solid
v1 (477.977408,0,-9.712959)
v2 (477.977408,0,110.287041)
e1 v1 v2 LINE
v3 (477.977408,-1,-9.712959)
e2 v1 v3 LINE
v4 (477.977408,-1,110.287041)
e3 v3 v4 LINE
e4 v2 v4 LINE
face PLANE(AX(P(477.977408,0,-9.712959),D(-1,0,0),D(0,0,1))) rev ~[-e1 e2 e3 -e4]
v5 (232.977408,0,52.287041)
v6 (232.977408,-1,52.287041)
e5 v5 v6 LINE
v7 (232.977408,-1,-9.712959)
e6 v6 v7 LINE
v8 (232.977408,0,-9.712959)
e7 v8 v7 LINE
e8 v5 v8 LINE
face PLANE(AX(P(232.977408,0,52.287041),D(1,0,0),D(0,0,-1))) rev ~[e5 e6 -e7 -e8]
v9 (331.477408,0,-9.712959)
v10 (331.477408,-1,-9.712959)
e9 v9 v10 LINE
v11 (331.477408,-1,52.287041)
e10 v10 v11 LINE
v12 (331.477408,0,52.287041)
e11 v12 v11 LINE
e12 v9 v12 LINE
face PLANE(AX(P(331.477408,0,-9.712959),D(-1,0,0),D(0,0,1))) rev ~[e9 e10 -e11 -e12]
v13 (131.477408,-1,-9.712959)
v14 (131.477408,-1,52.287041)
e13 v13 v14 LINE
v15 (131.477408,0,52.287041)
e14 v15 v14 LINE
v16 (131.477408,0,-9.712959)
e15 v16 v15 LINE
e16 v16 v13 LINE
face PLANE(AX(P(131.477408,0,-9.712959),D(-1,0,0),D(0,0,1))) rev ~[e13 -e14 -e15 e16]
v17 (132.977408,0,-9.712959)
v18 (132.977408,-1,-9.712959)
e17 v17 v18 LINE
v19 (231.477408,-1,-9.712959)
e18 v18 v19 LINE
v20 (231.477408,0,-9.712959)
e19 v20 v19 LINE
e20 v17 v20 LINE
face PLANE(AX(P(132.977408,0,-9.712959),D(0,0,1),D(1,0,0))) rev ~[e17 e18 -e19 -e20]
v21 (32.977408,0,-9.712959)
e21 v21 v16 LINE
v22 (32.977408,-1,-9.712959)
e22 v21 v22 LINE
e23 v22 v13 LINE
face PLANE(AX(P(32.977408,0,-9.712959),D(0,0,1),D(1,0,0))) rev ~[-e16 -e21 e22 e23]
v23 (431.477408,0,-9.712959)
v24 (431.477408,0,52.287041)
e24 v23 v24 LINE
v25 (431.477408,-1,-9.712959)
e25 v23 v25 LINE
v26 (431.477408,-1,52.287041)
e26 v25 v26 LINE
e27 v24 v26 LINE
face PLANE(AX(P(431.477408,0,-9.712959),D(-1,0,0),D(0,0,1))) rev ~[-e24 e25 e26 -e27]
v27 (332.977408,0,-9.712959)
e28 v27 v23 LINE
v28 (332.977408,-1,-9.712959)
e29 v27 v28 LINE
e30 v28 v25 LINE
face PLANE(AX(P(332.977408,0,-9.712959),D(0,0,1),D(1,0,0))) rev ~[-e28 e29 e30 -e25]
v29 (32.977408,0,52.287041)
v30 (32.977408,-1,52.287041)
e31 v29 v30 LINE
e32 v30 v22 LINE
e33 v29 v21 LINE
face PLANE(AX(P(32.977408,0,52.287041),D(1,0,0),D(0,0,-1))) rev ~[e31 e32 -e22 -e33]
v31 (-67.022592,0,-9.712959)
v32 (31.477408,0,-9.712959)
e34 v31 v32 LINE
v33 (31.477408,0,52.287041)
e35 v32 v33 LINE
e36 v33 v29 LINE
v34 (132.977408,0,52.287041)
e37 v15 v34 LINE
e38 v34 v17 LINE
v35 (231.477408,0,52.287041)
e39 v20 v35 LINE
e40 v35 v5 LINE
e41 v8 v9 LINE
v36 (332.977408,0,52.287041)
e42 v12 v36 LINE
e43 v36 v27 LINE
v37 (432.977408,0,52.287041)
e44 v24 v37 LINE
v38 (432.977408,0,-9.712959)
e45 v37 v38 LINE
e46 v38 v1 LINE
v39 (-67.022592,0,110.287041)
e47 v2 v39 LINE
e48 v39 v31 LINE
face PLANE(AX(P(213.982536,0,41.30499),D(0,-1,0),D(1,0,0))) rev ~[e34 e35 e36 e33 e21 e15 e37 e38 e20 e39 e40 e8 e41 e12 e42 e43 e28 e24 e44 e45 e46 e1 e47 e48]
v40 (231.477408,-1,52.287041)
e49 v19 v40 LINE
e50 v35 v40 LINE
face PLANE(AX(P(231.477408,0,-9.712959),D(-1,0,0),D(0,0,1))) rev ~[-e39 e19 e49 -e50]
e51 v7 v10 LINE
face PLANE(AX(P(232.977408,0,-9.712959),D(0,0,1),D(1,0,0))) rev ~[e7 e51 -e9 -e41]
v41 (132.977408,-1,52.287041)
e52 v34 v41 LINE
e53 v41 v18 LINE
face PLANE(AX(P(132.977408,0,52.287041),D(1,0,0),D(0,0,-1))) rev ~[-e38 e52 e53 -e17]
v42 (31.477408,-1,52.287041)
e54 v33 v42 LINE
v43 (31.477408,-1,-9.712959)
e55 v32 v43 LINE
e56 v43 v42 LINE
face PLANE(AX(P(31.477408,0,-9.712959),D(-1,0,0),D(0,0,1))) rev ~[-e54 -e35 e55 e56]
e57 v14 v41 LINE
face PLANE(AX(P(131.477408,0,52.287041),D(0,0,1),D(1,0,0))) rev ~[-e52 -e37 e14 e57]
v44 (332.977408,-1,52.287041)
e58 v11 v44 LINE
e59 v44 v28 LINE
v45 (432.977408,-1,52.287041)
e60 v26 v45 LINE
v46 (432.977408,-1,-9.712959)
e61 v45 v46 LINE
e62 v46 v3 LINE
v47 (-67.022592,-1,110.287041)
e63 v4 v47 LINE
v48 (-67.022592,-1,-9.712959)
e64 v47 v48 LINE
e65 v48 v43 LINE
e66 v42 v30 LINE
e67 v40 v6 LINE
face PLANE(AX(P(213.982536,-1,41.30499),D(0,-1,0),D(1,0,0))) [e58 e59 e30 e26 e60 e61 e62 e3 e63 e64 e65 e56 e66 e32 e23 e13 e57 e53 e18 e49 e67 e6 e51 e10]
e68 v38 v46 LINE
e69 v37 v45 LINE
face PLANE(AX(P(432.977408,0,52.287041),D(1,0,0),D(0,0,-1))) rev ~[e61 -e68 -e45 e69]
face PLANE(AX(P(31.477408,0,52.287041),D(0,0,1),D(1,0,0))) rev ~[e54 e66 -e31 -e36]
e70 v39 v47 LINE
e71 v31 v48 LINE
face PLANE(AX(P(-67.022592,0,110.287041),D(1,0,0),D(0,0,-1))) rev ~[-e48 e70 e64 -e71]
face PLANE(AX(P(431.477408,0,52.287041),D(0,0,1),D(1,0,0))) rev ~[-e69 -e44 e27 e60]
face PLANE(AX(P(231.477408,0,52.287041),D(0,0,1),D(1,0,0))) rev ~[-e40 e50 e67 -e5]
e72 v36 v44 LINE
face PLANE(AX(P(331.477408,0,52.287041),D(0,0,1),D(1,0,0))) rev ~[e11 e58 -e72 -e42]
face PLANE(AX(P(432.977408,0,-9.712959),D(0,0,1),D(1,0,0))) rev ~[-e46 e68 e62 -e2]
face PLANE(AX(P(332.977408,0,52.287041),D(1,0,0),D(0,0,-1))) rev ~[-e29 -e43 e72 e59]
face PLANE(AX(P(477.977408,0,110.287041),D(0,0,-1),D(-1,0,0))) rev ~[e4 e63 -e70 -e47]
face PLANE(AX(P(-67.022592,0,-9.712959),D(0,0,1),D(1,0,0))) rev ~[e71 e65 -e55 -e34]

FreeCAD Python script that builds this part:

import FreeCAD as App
import Part
import Sketcher

V = App.Vector
Q = App.Units.Quantity

doc = App.newDocument("Part")
body = doc.addObject("PartDesign::Body", "Body")

sketch1 = body.newObject("Sketcher::SketchObject", "Sketch")
sketch1.AttachmentSupport = (doc.getObject("XZ_Plane"), [""])
sketch1.MapMode = "FlatFace"
sketch1.addGeometry([
    Part.LineSegment(V(-67, 110.3, 0), V(-67, -9.7, 0)),
    Part.LineSegment(V(-67, -9.7, 0), V(31.5, -9.7, 0)),
    Part.LineSegment(V(31.5, -9.7, 0), V(31.5, 52.3, 0)),
    Part.LineSegment(V(31.5, 52.3, 0), V(33, 52.3, 0)),
    Part.LineSegment(V(33, 52.3, 0), V(33, -9.7, 0)),
    Part.LineSegment(V(33, -9.7, 0), V(131.5, -9.7, 0)),
    Part.LineSegment(V(131.5, -9.7, 0), V(131.5, 52.3, 0)),
    Part.LineSegment(V(131.5, 52.3, 0), V(133, 52.3, 0)),
    Part.LineSegment(V(133, 52.3, 0), V(133, -9.7, 0)),
    Part.LineSegment(V(133, -9.7, 0), V(231.5, -9.7, 0)),
    Part.LineSegment(V(231.5, -9.7, 0), V(231.5, 52.3, 0)),
    Part.LineSegment(V(231.5, 52.3, 0), V(233, 52.3, 0)),
    Part.LineSegment(V(233, 52.3, 0), V(233, -9.7, 0)),
    Part.LineSegment(V(233, -9.7, 0), V(331.5, -9.7, 0)),
    Part.LineSegment(V(331.5, -9.7, 0), V(331.5, 52.3, 0)),
    Part.LineSegment(V(331.5, 52.3, 0), V(333, 52.3, 0)),
    Part.LineSegment(V(333, 52.3, 0), V(333, -9.7, 0)),
    Part.LineSegment(V(333, -9.7, 0), V(431.5, -9.7, 0)),
    Part.LineSegment(V(431.5, -9.7, 0), V(431.5, 52.3, 0)),
    Part.LineSegment(V(431.5, 52.3, 0), V(433, 52.3, 0)),
    Part.LineSegment(V(433, 52.3, 0), V(433, -9.7, 0)),
    Part.LineSegment(V(433, -9.7, 0), V(478, -9.7, 0)),
    Part.LineSegment(V(478, -9.7, 0), V(478, 110.3, 0)),
    Part.LineSegment(V(478, 110.3, 0), V(-67, 110.3, 0)),
], False)
sketch1.addConstraint([
    Sketcher.Constraint("Coincident", 0, 2, 1, 1),
    Sketcher.Constraint("Coincident", 1, 2, 2, 1),
    Sketcher.Constraint("Coincident", 2, 2, 3, 1),
    Sketcher.Constraint("Coincident", 3, 2, 4, 1),
    Sketcher.Constraint("Coincident", 4, 2, 5, 1),
    Sketcher.Constraint("Coincident", 5, 2, 6, 1),
    Sketcher.Constraint("Coincident", 6, 2, 7, 1),
    Sketcher.Constraint("Coincident", 7, 2, 8, 1),
    Sketcher.Constraint("Coincident", 8, 2, 9, 1),
    Sketcher.Constraint("Coincident", 9, 2, 10, 1),
    Sketcher.Constraint("Coincident", 10, 2, 11, 1),
    Sketcher.Constraint("Coincident", 11, 2, 12, 1),
    Sketcher.Constraint("Coincident", 12, 2, 13, 1),
    Sketcher.Constraint("Coincident", 13, 2, 14, 1),
    Sketcher.Constraint("Coincident", 14, 2, 15, 1),
    Sketcher.Constraint("Coincident", 15, 2, 16, 1),
    Sketcher.Constraint("Coincident", 16, 2, 17, 1),
    Sketcher.Constraint("Coincident", 17, 2, 18, 1),
    Sketcher.Constraint("Coincident", 18, 2, 19, 1),
    Sketcher.Constraint("Coincident", 19, 2, 20, 1),
    Sketcher.Constraint("Coincident", 20, 2, 21, 1),
    Sketcher.Constraint("Coincident", 21, 2, 22, 1),
    Sketcher.Constraint("Coincident", 22, 2, 23, 1),
    Sketcher.Constraint("Coincident", 23, 2, 0, 1),
    Sketcher.Constraint("Vertical", 0),
    Sketcher.Constraint("Horizontal", 1),
    Sketcher.Constraint("Vertical", 2),
    Sketcher.Constraint("Horizontal", 3),
    Sketcher.Constraint("Vertical", 4),
    Sketcher.Constraint("Horizontal", 5),
    Sketcher.Constraint("Vertical", 6),
    Sketcher.Constraint("Horizontal", 7),
    Sketcher.Constraint("Vertical", 8),
    Sketcher.Constraint("Horizontal", 9),
    Sketcher.Constraint("Vertical", 10),
    Sketcher.Constraint("Horizontal", 11),
    Sketcher.Constraint("Vertical", 12),
    Sketcher.Constraint("Horizontal", 13),
    Sketcher.Constraint("Vertical", 14),
    Sketcher.Constraint("Horizontal", 15),
    Sketcher.Constraint("Vertical", 16),
    Sketcher.Constraint("Horizontal", 17),
    Sketcher.Constraint("Vertical", 18),
    Sketcher.Constraint("Horizontal", 19),
    Sketcher.Constraint("Vertical", 20),
    Sketcher.Constraint("Horizontal", 21),
    Sketcher.Constraint("Vertical", 22),
    Sketcher.Constraint("Horizontal", 23),
    Sketcher.Constraint("Horizontal", 1, 2, 4, 2),
    Sketcher.Constraint("Horizontal", 3, 2, 6, 2),
    Sketcher.Constraint("Horizontal", 5, 2, 8, 2),
    Sketcher.Constraint("Horizontal", 7, 2, 10, 2),
    Sketcher.Constraint("Horizontal", 9, 2, 12, 2),
    Sketcher.Constraint("Horizontal", 11, 2, 14, 2),
    Sketcher.Constraint("Horizontal", 13, 2, 16, 2),
    Sketcher.Constraint("Horizontal", 15, 2, 18, 2),
    Sketcher.Constraint("Horizontal", 17, 2, 20, 2),
    Sketcher.Constraint("Equal", 1, 5),
    Sketcher.Constraint("Equal", 3, 7),
    Sketcher.Constraint("Equal", 5, 9),
    Sketcher.Constraint("Equal", 7, 11),
    Sketcher.Constraint("Equal", 9, 13),
    Sketcher.Constraint("Equal", 11, 15),
    Sketcher.Constraint("Equal", 13, 17),
    Sketcher.Constraint("Equal", 15, 19),
    Sketcher.Constraint("DistanceX", 21, 1, 21, 2, Q("45 mm")),
    Sketcher.Constraint("DistanceX", 23, 2, 23, 1, Q("545 mm")),
    Sketcher.Constraint("DistanceY", 0, 2, 0, 1, Q("120 mm")),
    Sketcher.Constraint("DistanceY", 2, 1, 2, 2, Q("62 mm")),
    Sketcher.Constraint("DistanceX", 1, 1, 1, 2, Q("98.5 mm")),
    Sketcher.Constraint("DistanceY", 0, 2, -1, 1, Q("9.712959 mm")),
    Sketcher.Constraint("DistanceX", -1, 1, 1, 2, Q("31.477408 mm")),
])
pad1 = body.newObject("PartDesign::Pad", "Pad")
pad1.Profile = sketch1
pad1.Length = 1

doc.recompute()
